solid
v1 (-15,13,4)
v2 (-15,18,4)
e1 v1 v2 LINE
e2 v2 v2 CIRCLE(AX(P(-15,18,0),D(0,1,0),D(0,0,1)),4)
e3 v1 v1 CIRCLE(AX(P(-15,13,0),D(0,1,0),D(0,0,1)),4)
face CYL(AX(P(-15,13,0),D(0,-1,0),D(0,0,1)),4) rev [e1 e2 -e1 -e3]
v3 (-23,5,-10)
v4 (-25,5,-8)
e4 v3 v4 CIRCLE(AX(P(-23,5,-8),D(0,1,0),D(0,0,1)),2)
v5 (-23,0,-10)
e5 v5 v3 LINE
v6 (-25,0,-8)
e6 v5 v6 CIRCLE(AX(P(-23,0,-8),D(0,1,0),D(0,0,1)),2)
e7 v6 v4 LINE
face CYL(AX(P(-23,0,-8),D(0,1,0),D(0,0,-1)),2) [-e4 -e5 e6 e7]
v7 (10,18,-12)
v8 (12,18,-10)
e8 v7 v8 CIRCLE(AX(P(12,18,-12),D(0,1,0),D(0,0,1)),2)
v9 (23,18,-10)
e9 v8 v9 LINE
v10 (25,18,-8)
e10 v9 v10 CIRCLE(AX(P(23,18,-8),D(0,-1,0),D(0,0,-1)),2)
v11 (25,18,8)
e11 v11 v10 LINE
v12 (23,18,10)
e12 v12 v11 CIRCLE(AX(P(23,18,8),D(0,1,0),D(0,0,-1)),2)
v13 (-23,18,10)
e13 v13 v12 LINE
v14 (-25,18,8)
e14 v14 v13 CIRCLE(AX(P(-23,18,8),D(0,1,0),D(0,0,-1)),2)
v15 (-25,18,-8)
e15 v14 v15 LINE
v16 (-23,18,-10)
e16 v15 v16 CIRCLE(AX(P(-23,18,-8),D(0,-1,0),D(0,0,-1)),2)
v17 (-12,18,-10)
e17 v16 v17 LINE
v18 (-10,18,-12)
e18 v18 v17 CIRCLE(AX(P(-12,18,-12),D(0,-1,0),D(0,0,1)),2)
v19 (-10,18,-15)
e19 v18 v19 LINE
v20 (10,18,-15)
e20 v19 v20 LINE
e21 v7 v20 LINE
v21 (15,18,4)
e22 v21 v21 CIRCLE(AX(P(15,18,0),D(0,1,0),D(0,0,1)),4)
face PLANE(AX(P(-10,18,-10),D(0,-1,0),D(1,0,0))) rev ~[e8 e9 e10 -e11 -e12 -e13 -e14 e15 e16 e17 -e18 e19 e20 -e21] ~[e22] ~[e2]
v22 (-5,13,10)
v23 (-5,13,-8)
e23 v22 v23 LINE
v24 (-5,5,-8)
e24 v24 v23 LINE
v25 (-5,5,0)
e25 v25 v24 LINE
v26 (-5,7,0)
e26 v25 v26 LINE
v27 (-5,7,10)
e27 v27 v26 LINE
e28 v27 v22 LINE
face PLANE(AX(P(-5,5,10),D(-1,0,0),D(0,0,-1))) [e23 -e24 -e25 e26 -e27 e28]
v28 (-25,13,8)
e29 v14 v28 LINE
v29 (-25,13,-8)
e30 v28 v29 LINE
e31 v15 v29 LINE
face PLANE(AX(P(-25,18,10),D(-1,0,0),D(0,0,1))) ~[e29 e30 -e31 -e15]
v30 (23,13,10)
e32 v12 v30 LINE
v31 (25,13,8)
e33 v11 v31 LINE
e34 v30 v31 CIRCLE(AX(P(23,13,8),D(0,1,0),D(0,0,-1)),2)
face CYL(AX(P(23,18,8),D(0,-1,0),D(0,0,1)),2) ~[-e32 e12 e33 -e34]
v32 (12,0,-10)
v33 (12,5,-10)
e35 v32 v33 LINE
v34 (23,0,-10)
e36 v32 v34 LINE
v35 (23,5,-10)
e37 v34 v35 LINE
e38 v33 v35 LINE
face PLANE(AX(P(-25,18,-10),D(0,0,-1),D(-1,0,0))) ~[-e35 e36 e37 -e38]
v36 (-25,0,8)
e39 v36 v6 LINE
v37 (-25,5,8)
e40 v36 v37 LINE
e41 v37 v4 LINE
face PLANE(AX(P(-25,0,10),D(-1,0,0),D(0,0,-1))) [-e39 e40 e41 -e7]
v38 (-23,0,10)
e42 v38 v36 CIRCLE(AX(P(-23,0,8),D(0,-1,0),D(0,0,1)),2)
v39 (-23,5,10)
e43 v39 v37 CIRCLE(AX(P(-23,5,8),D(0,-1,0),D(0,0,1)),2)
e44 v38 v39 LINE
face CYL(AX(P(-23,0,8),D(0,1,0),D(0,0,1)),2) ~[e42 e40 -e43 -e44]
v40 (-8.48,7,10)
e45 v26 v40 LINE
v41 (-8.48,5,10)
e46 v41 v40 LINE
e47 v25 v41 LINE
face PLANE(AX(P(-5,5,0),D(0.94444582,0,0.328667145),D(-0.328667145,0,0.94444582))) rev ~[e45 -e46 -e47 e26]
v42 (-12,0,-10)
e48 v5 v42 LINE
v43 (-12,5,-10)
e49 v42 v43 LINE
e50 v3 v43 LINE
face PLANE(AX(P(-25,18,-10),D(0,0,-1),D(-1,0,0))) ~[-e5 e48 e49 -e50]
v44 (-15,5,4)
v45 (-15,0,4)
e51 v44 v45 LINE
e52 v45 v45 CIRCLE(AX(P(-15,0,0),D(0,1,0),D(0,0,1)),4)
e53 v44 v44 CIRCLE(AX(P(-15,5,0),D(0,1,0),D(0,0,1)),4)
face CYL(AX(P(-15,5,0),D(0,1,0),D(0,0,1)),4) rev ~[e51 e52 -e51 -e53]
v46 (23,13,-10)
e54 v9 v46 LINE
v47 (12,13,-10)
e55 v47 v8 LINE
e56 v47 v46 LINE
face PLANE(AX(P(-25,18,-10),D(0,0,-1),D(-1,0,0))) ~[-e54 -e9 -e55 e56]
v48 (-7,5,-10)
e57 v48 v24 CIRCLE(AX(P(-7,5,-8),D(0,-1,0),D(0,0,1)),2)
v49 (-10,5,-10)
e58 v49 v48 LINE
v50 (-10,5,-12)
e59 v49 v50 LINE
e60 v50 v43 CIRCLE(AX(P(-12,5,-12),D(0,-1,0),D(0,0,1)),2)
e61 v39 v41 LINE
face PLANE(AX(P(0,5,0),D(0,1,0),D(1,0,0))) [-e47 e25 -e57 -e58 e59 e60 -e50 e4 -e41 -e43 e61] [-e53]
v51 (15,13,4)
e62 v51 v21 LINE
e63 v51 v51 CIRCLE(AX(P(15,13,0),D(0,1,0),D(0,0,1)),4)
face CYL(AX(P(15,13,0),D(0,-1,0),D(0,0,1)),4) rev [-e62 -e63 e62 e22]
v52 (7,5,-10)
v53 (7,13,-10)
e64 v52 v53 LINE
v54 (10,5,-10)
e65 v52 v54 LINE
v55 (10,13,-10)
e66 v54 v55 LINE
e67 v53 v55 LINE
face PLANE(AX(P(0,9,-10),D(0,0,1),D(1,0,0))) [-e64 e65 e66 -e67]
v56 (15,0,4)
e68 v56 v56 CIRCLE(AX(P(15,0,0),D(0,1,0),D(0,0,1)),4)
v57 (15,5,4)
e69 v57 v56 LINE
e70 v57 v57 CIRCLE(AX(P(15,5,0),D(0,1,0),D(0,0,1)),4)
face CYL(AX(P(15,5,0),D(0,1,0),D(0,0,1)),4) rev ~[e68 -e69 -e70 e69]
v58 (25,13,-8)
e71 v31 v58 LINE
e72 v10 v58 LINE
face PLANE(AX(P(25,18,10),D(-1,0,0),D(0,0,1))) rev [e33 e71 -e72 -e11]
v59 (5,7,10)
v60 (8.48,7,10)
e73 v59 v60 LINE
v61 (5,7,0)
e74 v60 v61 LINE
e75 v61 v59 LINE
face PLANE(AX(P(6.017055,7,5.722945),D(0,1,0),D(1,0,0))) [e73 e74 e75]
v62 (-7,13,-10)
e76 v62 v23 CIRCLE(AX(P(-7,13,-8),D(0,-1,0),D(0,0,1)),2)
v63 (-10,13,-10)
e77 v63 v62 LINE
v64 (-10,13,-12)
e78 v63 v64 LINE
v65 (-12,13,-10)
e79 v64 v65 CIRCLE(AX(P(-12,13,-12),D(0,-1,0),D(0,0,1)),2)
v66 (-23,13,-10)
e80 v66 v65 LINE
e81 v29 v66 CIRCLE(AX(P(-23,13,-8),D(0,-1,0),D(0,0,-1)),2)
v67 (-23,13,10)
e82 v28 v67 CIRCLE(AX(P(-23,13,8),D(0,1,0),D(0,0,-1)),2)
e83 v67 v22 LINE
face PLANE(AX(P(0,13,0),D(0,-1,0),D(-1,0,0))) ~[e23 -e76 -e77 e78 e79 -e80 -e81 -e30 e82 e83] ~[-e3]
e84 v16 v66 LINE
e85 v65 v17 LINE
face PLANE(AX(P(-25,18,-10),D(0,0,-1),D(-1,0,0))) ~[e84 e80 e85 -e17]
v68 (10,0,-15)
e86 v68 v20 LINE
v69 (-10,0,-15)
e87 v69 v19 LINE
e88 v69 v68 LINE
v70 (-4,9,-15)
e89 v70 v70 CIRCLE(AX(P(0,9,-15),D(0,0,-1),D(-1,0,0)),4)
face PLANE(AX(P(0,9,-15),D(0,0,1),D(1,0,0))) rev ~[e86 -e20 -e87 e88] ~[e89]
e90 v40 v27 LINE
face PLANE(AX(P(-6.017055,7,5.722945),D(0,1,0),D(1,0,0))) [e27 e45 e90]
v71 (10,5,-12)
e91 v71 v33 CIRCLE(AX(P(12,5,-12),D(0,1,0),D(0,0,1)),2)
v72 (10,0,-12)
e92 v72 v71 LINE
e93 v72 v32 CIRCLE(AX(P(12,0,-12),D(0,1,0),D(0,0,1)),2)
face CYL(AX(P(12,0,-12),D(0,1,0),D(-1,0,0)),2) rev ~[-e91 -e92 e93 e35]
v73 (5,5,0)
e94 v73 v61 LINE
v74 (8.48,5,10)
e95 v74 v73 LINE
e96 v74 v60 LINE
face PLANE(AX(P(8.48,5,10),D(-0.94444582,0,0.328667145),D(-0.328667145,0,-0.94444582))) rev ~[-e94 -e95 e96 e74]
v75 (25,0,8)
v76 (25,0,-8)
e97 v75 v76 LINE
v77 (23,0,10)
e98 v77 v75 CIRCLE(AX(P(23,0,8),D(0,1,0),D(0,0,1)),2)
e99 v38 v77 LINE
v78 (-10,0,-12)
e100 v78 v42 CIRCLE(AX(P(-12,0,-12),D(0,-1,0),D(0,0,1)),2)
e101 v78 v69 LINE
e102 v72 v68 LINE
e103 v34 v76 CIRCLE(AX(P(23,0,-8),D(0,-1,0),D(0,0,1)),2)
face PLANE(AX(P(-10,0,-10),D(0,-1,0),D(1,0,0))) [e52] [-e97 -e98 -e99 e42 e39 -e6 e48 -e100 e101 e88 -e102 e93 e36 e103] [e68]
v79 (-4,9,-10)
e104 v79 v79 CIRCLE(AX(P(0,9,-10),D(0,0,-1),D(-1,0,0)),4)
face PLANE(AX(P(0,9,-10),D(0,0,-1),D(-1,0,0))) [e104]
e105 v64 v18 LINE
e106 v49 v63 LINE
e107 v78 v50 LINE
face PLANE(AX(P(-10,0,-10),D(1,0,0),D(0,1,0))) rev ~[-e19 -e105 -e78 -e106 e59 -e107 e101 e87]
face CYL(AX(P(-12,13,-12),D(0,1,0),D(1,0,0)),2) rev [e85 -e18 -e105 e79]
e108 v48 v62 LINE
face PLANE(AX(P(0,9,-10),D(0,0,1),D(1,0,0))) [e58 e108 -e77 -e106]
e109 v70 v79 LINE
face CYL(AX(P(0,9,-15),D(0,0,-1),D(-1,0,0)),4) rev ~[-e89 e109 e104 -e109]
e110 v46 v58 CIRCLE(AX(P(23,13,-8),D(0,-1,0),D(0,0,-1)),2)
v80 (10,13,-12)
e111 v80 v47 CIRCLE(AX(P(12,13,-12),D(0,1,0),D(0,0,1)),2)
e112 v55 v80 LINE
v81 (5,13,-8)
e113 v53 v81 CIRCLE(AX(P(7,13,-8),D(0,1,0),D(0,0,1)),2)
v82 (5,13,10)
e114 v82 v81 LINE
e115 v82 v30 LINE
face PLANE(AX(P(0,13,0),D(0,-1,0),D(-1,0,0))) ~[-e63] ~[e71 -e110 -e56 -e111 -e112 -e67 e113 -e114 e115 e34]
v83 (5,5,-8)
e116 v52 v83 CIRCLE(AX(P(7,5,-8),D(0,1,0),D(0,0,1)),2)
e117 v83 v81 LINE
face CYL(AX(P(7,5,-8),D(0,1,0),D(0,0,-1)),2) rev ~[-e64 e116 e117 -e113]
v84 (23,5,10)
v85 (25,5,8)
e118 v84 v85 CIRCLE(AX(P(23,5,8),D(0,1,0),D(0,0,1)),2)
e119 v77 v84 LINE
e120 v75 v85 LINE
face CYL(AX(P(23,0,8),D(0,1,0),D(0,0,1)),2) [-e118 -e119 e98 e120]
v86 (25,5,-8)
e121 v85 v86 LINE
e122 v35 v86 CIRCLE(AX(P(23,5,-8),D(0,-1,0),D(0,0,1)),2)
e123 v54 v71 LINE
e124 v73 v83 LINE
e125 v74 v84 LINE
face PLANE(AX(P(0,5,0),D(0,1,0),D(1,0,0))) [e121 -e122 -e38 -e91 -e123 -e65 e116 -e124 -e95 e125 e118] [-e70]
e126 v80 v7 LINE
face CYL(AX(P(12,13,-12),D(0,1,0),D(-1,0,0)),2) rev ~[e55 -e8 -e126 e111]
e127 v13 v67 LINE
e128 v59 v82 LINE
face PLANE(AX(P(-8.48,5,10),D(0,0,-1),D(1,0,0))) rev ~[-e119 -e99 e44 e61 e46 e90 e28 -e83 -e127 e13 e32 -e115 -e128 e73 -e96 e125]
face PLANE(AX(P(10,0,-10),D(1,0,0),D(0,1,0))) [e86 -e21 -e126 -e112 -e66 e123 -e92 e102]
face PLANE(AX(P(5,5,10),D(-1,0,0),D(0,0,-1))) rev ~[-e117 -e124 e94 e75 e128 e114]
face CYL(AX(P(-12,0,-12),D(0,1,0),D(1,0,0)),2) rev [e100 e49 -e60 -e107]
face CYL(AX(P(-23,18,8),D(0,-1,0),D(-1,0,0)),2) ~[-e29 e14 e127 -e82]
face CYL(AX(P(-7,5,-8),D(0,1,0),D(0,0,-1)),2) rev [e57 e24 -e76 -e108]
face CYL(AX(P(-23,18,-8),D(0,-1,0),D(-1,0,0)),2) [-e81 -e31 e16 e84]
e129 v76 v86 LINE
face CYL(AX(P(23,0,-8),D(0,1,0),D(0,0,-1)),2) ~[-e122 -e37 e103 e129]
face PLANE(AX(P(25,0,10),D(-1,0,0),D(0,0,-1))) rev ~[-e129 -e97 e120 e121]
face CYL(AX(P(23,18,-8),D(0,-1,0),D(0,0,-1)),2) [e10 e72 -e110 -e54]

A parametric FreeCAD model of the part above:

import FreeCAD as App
import Part
import Sketcher

V = App.Vector


def edges_at(feature, points):
    """Names of the edges that pass closest to the given points."""
    edges = feature.Shape.Edges
    near = lambda p: min(range(len(edges)), key=lambda i: edges[i].distToShape(Part.Vertex(*p))[0])
    return sorted({f"Edge{near(p) + 1}" for p in points})


def add_polygon(sketch, points):
    """Adds a closed chain of lines whose ends are joined by coincident constraints."""
    first, n = sketch.GeometryCount, len(points)
    for a, b in zip(points, points[1:] + points[:1]):
        sketch.addGeometry(Part.LineSegment(App.Vector(*a, 0), App.Vector(*b, 0)), False)
    for i in range(n):
        sketch.addConstraint(Sketcher.Constraint("Coincident", first + i, 2, first + (i + 1) % n, 1))

doc = App.newDocument("Part")
body = doc.addObject("PartDesign::Body", "Body")

# Sketch on XZ plane
sketch1 = body.newObject("Sketcher::SketchObject", "Sketch")
sketch1.AttachmentSupport = (doc.getObject("XZ_Plane"), [""])
sketch1.MapMode = "FlatFace"
add_polygon(sketch1, [(-25, -10), (-25, 10), (25, 10), (25, -10)])  # lines 0-3
sketch1.addConstraint([
    Sketcher.Constraint("Vertical", 0),
    Sketcher.Constraint("Horizontal", 1),
    Sketcher.Constraint("Vertical", 2),
    Sketcher.Constraint("Horizontal", 3),
    Sketcher.Constraint("Symmetric", 0, 2, 2, 2, -1, 1),
    Sketcher.Constraint("DistanceX", 1, 1, 1, 2, 50.0),
    Sketcher.Constraint("DistanceY", 0, 1, 0, 2, 20.0),
])
pad1 = body.newObject("PartDesign::Pad", "Pad")
pad1.Profile = sketch1
pad1.Length = 5
pad1.Reversed = True

# Sketch on XZ plane
sketch2 = body.newObject("Sketcher::SketchObject", "Sketch001")
sketch2.AttachmentSupport = (doc.getObject("XZ_Plane"), [""])
sketch2.MapMode = "FlatFace"
sketch2.AttachmentOffset = App.Placement(V(0, 0, -5), App.Rotation())
sketch2.addGeometry([
    Part.Circle(V(-15, 0, 0), V(0, 0, 1), 4),
    Part.Circle(V(15, 0, 0), V(0, 0, 1), 4),
], False)
sketch2.addConstraint([
    Sketcher.Constraint("Equal", 0, 1),
    Sketcher.Constraint("Symmetric", 0, 3, 1, 3, -1, 1),
    Sketcher.Constraint("PointOnObject", 0, 3, -1),
    Sketcher.Constraint("Diameter", 0, 8.0),
    Sketcher.Constraint("DistanceX", 0, 3, -1, 1, 15.0),
])
pocket1 = body.newObject("PartDesign::Pocket", "Pocket")
pocket1.Profile = sketch2
pocket1.Length = 5
pocket1.Reversed = True

# Sketch on XZ plane
sketch3 = body.newObject("Sketcher::SketchObject", "Sketch002")
sketch3.AttachmentSupport = (doc.getObject("XZ_Plane"), [""])
sketch3.MapMode = "FlatFace"
sketch3.AttachmentOffset = App.Placement(V(0, 0, -5), App.Rotation())
add_polygon(sketch3, [(-5, -10), (-5, 10), (5, 10), (5, -10)])  # lines 0-3
sketch3.addConstraint([
    Sketcher.Constraint("Vertical", 0),
    Sketcher.Constraint("Horizontal", 1),
    Sketcher.Constraint("Vertical", 2),
    Sketcher.Constraint("Horizontal", 3),
    Sketcher.Constraint("Symmetric", 0, 2, 2, 2, -1, 1),
    Sketcher.Constraint("DistanceX", 1, 1, 1, 2, 10.0),
    Sketcher.Constraint("DistanceY", 0, 1, 0, 2, 20.0),
])
pad2 = body.newObject("PartDesign::Pad", "Pad001")
pad2.Profile = sketch3
pad2.Length = 8
pad2.Reversed = True
doc.recompute()

datumplane = body.newObject("PartDesign::Plane", "DatumPlane")
datumplane.AttachmentSupport = (doc.getObject("XZ_Plane"), [""])
datumplane.MapMode = "FlatFace"
datumplane.AttachmentOffset = App.Placement(V(0, 0, -9), App.Rotation())
mirrored = body.newObject("PartDesign::Mirrored", "Mirrored")
mirrored.Originals = [pad1, pocket1]
mirrored.MirrorPlane = (datumplane, [""])
body.Tip = mirrored
doc.recompute()

fillet = body.newObject("PartDesign::Fillet", "Fillet")
fillet.Base = (mirrored, edges_at(mirrored, [
    (-25, 15.5, 10),
    (-25, 15.5, -10),
    (25, 15.5, -10),
    (25, 15.5, 10),
    (-25, 2.5, -10),
    (25, 2.5, -10),
    (25, 2.5, 10),
    (-25, 2.5, 10),
]))
fillet.Radius = 2

# Sketch on XY plane
sketch4 = body.newObject("Sketcher::SketchObject", "Sketch003")
sketch4.AttachmentSupport = (doc.getObject("XY_Plane"), [""])
sketch4.MapMode = "FlatFace"
sketch4.AttachmentOffset = App.Placement(V(0, 0, -10), App.Rotation())
add_polygon(sketch4, [(-10, 18), (-10, 0), (10, 0), (10, 18)])  # lines 0-3
sketch4.addConstraint([
    Sketcher.Constraint("Vertical", 0),
    Sketcher.Constraint("Horizontal", 1),
    Sketcher.Constraint("Vertical", 2),
    Sketcher.Constraint("Horizontal", 3),
    Sketcher.Constraint("Symmetric", 0, 2, 1, 2, -1, 1),
    Sketcher.Constraint("DistanceX", 1, 1, 1, 2, 20.0),
    Sketcher.Constraint("DistanceY", 0, 2, 0, 1, 18.0),
])
pad3 = body.newObject("PartDesign::Pad", "Pad002")
pad3.Profile = sketch4
pad3.Length = 5
pad3.Reversed = True

# Sketch on XY plane
sketch5 = body.newObject("Sketcher::SketchObject", "Sketch004")
sketch5.AttachmentSupport = (doc.getObject("XY_Plane"), [""])
sketch5.MapMode = "FlatFace"
sketch5.AttachmentOffset = App.Placement(V(0, 0, -15), App.Rotation())
sketch5.addGeometry(Part.Circle(V(0, 9, 0), V(0, 0, 1), 4), False)
sketch5.addConstraint([
    Sketcher.Constraint("PointOnObject", 0, 3, -2),
    Sketcher.Constraint("Diameter", 0, 8.0),
    Sketcher.Constraint("DistanceY", -1, 1, 0, 3, 9.0),
])
pocket2 = body.newObject("PartDesign::Pocket", "Pocket001")
pocket2.Profile = sketch5
pocket2.Length = 5
pocket2.Reversed = True
doc.recompute()

fillet2 = body.newObject("PartDesign::Fillet", "Fillet001")
fillet2.Base = (pocket2, edges_at(pocket2, [
    (10, 15.5, -10),
    (-10, 15.5, -10),
    (-10, 2.5, -10),
    (10, 2.5, -10),
    (5, 9, -10),
    (-5, 9, -10),
]))
fillet2.Radius = 2

# Sketch on XZ plane
sketch6 = body.newObject("Sketcher::SketchObject", "Sketch005")
sketch6.AttachmentSupport = (doc.getObject("XZ_Plane"), [""])
sketch6.MapMode = "FlatFace"
sketch6.AttachmentOffset = App.Placement(V(0, 0, -5), App.Rotation())
add_polygon(sketch6, [(-5, 10), (-5, 0), (-8.5, 10)])  # lines 0-2
add_polygon(sketch6, [(5, 0), (5, 10), (8.5, 10)])  # lines 3-5
sketch6.addConstraint([
    Sketcher.Constraint("Vertical", 0),
    Sketcher.Constraint("Horizontal", 2),
    Sketcher.Constraint("Vertical", 3),
    Sketcher.Constraint("Horizontal", 4),
    Sketcher.Constraint("Symmetric", 0, 2, 5, 2, -1, 1),
    Sketcher.Constraint("Symmetric", 1, 2, 4, 2, -2),
    Sketcher.Constraint("PointOnObject", 0, 2, -1),
    Sketcher.Constraint("DistanceY", 0, 2, 0, 1, 10.0),
    Sketcher.Constraint("DistanceX", 0, 2, -1, 1, 5.0),
    Sketcher.Constraint("DistanceX", 2, 1, 2, 2, 3.48),
])
pad4 = body.newObject("PartDesign::Pad", "Pad003")
pad4.Profile = sketch6
pad4.Length = 2
pad4.Reversed = True

doc.recompute()
